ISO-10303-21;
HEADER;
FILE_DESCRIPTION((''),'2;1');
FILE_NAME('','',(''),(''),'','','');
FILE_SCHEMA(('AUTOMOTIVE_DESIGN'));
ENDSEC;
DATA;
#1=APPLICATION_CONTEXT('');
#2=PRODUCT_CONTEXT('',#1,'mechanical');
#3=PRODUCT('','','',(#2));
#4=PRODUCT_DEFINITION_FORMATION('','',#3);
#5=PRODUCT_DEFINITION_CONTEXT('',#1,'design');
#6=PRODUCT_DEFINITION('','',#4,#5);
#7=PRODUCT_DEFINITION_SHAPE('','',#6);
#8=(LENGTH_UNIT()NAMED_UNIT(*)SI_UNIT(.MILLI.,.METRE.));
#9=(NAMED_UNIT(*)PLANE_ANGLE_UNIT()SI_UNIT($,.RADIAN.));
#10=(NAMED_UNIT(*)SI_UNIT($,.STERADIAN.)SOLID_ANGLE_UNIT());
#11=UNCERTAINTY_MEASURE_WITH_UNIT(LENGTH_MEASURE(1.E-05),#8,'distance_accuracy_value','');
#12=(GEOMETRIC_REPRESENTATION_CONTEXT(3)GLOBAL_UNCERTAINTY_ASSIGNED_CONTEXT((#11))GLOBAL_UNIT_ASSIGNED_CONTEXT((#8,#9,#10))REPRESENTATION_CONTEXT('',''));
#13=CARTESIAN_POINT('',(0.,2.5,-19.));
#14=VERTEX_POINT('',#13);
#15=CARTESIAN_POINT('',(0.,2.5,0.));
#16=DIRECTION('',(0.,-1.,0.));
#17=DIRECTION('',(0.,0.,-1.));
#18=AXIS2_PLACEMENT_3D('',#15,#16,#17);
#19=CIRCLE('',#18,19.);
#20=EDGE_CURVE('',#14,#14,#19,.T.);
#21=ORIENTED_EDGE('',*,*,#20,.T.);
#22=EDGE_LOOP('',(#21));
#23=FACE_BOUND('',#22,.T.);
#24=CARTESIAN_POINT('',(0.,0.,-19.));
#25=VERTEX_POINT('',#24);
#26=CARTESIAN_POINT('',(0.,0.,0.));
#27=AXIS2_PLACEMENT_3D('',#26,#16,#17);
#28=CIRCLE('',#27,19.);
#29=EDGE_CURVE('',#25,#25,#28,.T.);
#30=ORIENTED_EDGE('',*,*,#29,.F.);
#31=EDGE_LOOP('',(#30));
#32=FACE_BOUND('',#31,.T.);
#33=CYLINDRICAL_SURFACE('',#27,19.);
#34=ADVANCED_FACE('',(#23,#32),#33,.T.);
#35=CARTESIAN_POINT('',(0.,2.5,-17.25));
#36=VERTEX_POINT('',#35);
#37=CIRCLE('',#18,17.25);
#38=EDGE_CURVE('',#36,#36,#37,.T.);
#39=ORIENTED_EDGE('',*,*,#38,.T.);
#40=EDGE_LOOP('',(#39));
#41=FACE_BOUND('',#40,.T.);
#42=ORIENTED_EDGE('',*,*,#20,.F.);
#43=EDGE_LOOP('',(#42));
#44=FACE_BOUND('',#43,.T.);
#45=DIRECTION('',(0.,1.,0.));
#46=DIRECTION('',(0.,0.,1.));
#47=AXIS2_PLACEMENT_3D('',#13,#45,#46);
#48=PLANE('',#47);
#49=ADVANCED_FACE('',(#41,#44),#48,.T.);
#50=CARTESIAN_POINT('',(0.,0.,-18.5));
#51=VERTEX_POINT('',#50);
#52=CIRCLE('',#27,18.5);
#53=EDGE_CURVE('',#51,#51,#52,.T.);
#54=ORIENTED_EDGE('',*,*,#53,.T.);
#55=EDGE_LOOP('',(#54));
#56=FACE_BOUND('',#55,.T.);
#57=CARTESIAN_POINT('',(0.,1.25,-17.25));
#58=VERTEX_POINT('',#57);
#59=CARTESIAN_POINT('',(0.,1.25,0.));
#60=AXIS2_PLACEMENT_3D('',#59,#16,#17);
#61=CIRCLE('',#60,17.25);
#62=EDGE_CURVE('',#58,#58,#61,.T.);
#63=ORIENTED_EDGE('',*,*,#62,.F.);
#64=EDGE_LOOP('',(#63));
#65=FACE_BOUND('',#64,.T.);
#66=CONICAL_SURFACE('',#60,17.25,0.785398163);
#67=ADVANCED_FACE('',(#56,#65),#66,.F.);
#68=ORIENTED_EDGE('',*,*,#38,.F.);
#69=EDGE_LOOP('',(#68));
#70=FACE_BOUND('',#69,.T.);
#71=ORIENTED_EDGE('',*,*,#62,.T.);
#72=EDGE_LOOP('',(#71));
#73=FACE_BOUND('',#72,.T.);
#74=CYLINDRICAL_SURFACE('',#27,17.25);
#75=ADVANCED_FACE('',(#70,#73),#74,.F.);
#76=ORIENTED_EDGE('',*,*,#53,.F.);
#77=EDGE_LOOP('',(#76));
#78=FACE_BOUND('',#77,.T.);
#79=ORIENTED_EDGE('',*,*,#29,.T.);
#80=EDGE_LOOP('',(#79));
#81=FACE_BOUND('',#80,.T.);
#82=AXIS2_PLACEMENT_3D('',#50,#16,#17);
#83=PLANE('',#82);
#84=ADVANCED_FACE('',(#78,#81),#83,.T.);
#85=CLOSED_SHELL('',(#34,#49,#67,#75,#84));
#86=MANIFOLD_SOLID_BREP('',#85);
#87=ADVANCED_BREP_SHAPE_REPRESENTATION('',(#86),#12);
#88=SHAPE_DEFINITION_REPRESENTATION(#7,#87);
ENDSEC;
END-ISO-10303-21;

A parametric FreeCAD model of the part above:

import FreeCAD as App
import Part
import Sketcher
Q = App.Units.Quantity

doc = App.newDocument("Part")
params = doc.addObject("Spreadsheet::Sheet", "Params")
for row, (alias, value) in enumerate([
    ("sketch1_width", "2.5 mm"),
    ("sketch1_height", "0.5 mm"),
    ("sketch1_width2", "1.25 mm"),
    ("revolution_angle", "360 deg"),
], start=1):
    params.set(f"A{row}", alias)
    params.set(f"B{row}", "=" + value)
    params.setAlias(f"B{row}", alias)

body = doc.addObject("PartDesign::Body", "Body")

sketch1 = body.newObject("Sketcher::SketchObject", "Sketch")
sketch1.AttachmentSupport = (doc.getObject("YZ_Plane"), [""])
sketch1.MapMode = "FlatFace"
sketch1.addGeometry([
    Part.LineSegment(App.Vector(0, -18.5, 0), App.Vector(0, -19, 0)),
    Part.LineSegment(App.Vector(0, -19, 0), App.Vector(2.5, -19, 0)),
    Part.LineSegment(App.Vector(2.5, -19, 0), App.Vector(2.5, -17.2, 0)),
    Part.LineSegment(App.Vector(2.5, -17.2, 0), App.Vector(1.2, -17.2, 0)),
    Part.LineSegment(App.Vector(1.2, -17.2, 0), App.Vector(0, -18.5, 0)),
], False)
sketch1.addConstraint([
    Sketcher.Constraint("Coincident", 0, 2, 1, 1),
    Sketcher.Constraint("Coincident", 1, 2, 2, 1),
    Sketcher.Constraint("Coincident", 2, 2, 3, 1),
    Sketcher.Constraint("Coincident", 3, 2, 4, 1),
    Sketcher.Constraint("Coincident", 4, 2, 0, 1),
    Sketcher.Constraint("Vertical", 0),
    Sketcher.Constraint("Horizontal", 1),
    Sketcher.Constraint("Vertical", 2),
    Sketcher.Constraint("Horizontal", 3),
    Sketcher.Constraint("PointOnObject", 0, 2, -2),
    Sketcher.Constraint("Angle", 4, Q("-135 deg")),
    Sketcher.Constraint("DistanceX", 1, 1, 1, 2, Q("2.5 mm")),
    Sketcher.Constraint("DistanceY", 0, 2, 0, 1, Q("0.5 mm")),
    Sketcher.Constraint("DistanceY", 0, 2, -1, 1, Q("19 mm")),
    Sketcher.Constraint("DistanceX", 3, 2, 3, 1, Q("1.25 mm")),
])
sketch1.setExpression("Constraints[11]", "Params.sketch1_width")
sketch1.setExpression("Constraints[12]", "Params.sketch1_height")
sketch1.setExpression("Constraints[14]", "Params.sketch1_width2")
revolution = body.newObject("PartDesign::Revolution", "Revolution")
revolution.Profile = sketch1
revolution.ReferenceAxis = (sketch1, ["H_Axis"])
revolution.setExpression("Angle", "Params.revolution_angle")

doc.recompute()
